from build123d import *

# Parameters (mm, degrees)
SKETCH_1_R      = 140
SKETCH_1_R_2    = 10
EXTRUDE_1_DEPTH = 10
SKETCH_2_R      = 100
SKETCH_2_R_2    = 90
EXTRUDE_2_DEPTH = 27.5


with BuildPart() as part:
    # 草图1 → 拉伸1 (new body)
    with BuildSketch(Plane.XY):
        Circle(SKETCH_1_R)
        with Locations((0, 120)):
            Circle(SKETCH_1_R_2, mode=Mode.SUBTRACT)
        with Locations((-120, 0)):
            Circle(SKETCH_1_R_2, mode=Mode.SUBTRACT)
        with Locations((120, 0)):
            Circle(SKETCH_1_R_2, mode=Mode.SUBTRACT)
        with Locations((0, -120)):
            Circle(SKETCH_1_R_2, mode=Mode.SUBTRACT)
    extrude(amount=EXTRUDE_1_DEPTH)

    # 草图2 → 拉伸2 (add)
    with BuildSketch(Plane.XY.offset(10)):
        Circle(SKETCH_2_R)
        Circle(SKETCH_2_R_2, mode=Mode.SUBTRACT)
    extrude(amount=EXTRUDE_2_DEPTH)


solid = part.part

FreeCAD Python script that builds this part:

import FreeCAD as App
import Part
import Sketcher

V = App.Vector

doc = App.newDocument("Part")
params = doc.addObject("Spreadsheet::Sheet", "Params")
for row, (alias, value) in enumerate([
    ("sketch1_diameter", "280 mm"),
    ("sketch1_diameter2", "20 mm"),
    ("pad1_length", "10 mm"),
    ("sketch2_diameter", "200 mm"),
    ("sketch2_diameter2", "180 mm"),
    ("pad2_length", "27.5 mm"),
], start=1):
    params.set(f"A{row}", alias)
    params.set(f"B{row}", "=" + value)
    params.setAlias(f"B{row}", alias)

body = doc.addObject("PartDesign::Body", "Body")

# Sketch on XY plane
sketch1 = doc.addObject("Sketcher::SketchObject", "Sketch")
body.addObject(sketch1)
sketch1.AttachmentSupport = (doc.XY_Plane, [""])
sketch1.MapMode = "FlatFace"
sketch1.addGeometry([
    Part.Circle(V(0, 0, 0), V(0, 0, 1), 140),  # 0
    Part.Circle(V(0, -120, 0), V(0, 0, 1), 10),  # 1
    Part.Circle(V(-120, 0, 0), V(0, 0, 1), 10),  # 2
    Part.Circle(V(120, 0, 0), V(0, 0, 1), 10),  # 3
    Part.Circle(V(0, 120, 0), V(0, 0, 1), 10),  # 4
], False)
sketch1.addConstraint([
    Sketcher.Constraint("Coincident", 0, 3, -1, 1),
    Sketcher.Constraint("Equal", 1, 2),
    Sketcher.Constraint("Equal", 2, 3),
    Sketcher.Constraint("Equal", 3, 4),
    Sketcher.Constraint("Symmetric", 2, 3, 3, 3, -1, 1),
    Sketcher.Constraint("Symmetric", 1, 3, 4, 3, -1, 1),
    Sketcher.Constraint("PointOnObject", 1, 3, -2),
    Sketcher.Constraint("PointOnObject", 2, 3, -1),
    Sketcher.Constraint("Diameter", 0, 280.0),
    Sketcher.Constraint("Diameter", 1, 20.0),
    Sketcher.Constraint("DistanceY", 1, 3, -1, 1, 120.0),
    Sketcher.Constraint("DistanceX", 2, 3, -1, 1, 120.0),
])
sketch1.setExpression("Constraints[8]", "Params.sketch1_diameter")
sketch1.setExpression("Constraints[9]", "Params.sketch1_diameter2")
pad1 = doc.addObject("PartDesign::Pad", "Pad")
body.addObject(pad1)
pad1.Profile = sketch1
pad1.setExpression("Length", "Params.pad1_length")

# Sketch on XY plane
sketch2 = doc.addObject("Sketcher::SketchObject", "Sketch001")
body.addObject(sketch2)
sketch2.AttachmentSupport = (doc.XY_Plane, [""])
sketch2.MapMode = "FlatFace"
sketch2.AttachmentOffset = App.Placement(V(0, 0, 10), App.Rotation())
sketch2.addGeometry([
    Part.Circle(V(0, 0, 0), V(0, 0, 1), 100),
    Part.Circle(V(0, 0, 0), V(0, 0, 1), 90),
], False)
sketch2.addConstraint([
    Sketcher.Constraint("Coincident", 0, 3, -1, 1),
    Sketcher.Constraint("Coincident", 1, 3, -1, 1),
    Sketcher.Constraint("Diameter", 0, 200.0),
    Sketcher.Constraint("Diameter", 1, 180.0),
])
sketch2.setExpression("Constraints[2]", "Params.sketch2_diameter")
sketch2.setExpression("Constraints[3]", "Params.sketch2_diameter2")
pad2 = doc.addObject("PartDesign::Pad", "Pad001")
body.addObject(pad2)
pad2.Profile = sketch2
pad2.setExpression("Length", "Params.pad2_length")

doc.recompute()
